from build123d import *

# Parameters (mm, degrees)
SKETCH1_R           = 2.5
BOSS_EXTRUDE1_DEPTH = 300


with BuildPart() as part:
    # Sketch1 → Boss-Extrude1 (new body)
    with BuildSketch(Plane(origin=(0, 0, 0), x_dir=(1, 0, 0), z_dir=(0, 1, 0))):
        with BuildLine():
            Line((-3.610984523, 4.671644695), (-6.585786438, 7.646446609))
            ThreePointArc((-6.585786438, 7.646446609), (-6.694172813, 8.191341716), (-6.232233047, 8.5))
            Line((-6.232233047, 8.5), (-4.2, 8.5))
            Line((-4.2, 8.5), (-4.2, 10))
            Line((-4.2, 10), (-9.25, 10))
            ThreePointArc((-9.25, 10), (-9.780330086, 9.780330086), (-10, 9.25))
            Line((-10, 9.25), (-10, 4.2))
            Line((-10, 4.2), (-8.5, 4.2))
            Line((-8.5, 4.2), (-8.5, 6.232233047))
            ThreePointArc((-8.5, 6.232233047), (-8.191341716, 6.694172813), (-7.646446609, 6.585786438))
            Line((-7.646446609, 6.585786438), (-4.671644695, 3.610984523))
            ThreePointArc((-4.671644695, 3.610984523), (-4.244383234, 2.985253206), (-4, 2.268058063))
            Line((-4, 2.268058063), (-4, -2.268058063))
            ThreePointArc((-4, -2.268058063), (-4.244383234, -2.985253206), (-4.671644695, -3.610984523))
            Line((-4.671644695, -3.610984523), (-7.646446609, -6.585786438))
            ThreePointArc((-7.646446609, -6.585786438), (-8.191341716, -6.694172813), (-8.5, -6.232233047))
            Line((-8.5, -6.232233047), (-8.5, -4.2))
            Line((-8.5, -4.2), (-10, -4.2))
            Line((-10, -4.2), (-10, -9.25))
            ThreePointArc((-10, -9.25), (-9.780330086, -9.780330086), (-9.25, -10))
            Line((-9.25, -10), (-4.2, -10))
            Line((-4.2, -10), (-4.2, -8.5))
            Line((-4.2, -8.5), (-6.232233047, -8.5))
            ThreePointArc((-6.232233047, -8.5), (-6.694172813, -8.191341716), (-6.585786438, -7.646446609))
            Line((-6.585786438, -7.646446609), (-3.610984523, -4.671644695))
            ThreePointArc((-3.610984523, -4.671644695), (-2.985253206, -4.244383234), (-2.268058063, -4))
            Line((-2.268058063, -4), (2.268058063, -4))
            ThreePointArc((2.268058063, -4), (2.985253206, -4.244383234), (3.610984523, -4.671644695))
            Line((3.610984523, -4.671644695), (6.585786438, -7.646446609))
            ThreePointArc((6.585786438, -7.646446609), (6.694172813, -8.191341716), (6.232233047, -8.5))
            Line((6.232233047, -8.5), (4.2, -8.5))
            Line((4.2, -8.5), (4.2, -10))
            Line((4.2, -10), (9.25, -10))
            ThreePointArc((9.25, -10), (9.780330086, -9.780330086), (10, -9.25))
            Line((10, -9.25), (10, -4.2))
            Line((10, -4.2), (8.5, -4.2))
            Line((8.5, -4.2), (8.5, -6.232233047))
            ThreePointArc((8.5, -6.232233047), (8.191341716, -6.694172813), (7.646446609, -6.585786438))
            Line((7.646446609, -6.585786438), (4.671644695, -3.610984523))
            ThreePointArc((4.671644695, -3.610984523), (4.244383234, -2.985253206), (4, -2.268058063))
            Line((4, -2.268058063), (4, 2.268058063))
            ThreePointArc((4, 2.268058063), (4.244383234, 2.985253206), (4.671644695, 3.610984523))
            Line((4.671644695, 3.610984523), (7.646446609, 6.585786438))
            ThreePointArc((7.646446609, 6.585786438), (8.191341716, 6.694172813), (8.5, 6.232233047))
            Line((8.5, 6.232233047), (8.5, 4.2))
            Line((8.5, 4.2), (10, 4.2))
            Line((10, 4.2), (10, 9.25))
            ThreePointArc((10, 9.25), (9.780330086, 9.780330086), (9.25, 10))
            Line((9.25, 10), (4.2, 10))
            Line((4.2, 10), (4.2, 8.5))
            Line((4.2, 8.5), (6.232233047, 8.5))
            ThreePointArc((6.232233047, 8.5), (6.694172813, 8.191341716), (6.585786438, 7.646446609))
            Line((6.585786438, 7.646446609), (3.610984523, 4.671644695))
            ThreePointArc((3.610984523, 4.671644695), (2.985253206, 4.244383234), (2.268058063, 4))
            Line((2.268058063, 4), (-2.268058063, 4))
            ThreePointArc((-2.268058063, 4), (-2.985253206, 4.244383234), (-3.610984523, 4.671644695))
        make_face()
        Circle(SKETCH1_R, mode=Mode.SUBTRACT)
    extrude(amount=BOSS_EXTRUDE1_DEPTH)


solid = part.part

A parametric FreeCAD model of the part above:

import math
import FreeCAD as App
import Part
import Sketcher

V = App.Vector

doc = App.newDocument("Part")
body = doc.addObject("PartDesign::Body", "Body")

# Sketch on XZ plane
sketch1 = body.newObject("Sketcher::SketchObject", "Sketch")
sketch1.AttachmentSupport = (doc.getObject("XZ_Plane"), [""])
sketch1.MapMode = "FlatFace"
sketch1.addGeometry([
    Part.LineSegment(V(-3.610985, -4.671645, 0), V(-6.585786, -7.646447, 0)),  # 0
    Part.ArcOfCircle(Part.Circle(V(-6.232233, -8, 0), V(0, 0, 1), 0.5), math.radians(135), math.radians(270)),  # 1
    Part.LineSegment(V(-6.232233, -8.5, 0), V(-4.2, -8.5, 0)),  # 2
    Part.LineSegment(V(-4.2, -8.5, 0), V(-4.2, -10, 0)),  # 3
    Part.LineSegment(V(-4.2, -10, 0), V(-9.25, -10, 0)),  # 4
    Part.ArcOfCircle(Part.Circle(V(-9.25, -9.25, 0), V(0, 0, 1), 0.75), math.radians(180), math.radians(270)),  # 5
    Part.LineSegment(V(-10, -9.25, 0), V(-10, -4.2, 0)),  # 6
    Part.LineSegment(V(-10, -4.2, 0), V(-8.5, -4.2, 0)),  # 7
    Part.LineSegment(V(-8.5, -4.2, 0), V(-8.5, -6.232233, 0)),  # 8
    Part.ArcOfCircle(Part.Circle(V(-8, -6.232233, 0), V(0, 0, 1), 0.5), math.radians(-180), math.radians(-45)),  # 9
    Part.LineSegment(V(-7.646447, -6.585786, 0), V(-4.671645, -3.610985, 0)),  # 10
    Part.ArcOfCircle(Part.Circle(V(-6.755475, -1.729368, 0), V(0, 0, 1), 2.807638), math.radians(-42.080792), math.radians(-11.061698)),  # 11
    Part.LineSegment(V(-4, -2.268058, 0), V(-4, 2.268058, 0)),  # 12
    Part.ArcOfCircle(Part.Circle(V(-6.755475, 1.729368, 0), V(0, 0, 1), 2.807638), math.radians(11.061698), math.radians(42.080792)),  # 13
    Part.LineSegment(V(-4.671645, 3.610985, 0), V(-7.646447, 6.585786, 0)),  # 14
    Part.ArcOfCircle(Part.Circle(V(-8, 6.232233, 0), V(0, 0, 1), 0.5), math.radians(45), math.radians(180)),  # 15
    Part.LineSegment(V(-8.5, 6.232233, 0), V(-8.5, 4.2, 0)),  # 16
    Part.LineSegment(V(-8.5, 4.2, 0), V(-10, 4.2, 0)),  # 17
    Part.LineSegment(V(-10, 4.2, 0), V(-10, 9.25, 0)),  # 18
    Part.ArcOfCircle(Part.Circle(V(-9.25, 9.25, 0), V(0, 0, 1), 0.75), math.radians(90), math.radians(180)),  # 19
    Part.LineSegment(V(-9.25, 10, 0), V(-4.2, 10, 0)),  # 20
    Part.LineSegment(V(-4.2, 10, 0), V(-4.2, 8.5, 0)),  # 21
    Part.LineSegment(V(-4.2, 8.5, 0), V(-6.232233, 8.5, 0)),  # 22
    Part.ArcOfCircle(Part.Circle(V(-6.232233, 8, 0), V(0, 0, 1), 0.5), math.radians(90), math.radians(225)),  # 23
    Part.LineSegment(V(-6.585786, 7.646447, 0), V(-3.610985, 4.671645, 0)),  # 24
    Part.ArcOfCircle(Part.Circle(V(-1.729368, 6.755475, 0), V(0, 0, 1), 2.807638), math.radians(-132.080792), math.radians(-101.061698)),  # 25
    Part.LineSegment(V(-2.268058, 4, 0), V(2.268058, 4, 0)),  # 26
    Part.ArcOfCircle(Part.Circle(V(1.729368, 6.755475, 0), V(0, 0, 1), 2.807638), math.radians(-78.938302), math.radians(-47.919208)),  # 27
    Part.LineSegment(V(3.610985, 4.671645, 0), V(6.585786, 7.646447, 0)),  # 28
    Part.ArcOfCircle(Part.Circle(V(6.232233, 8, 0), V(0, 0, 1), 0.5), math.radians(-45), math.radians(90)),  # 29
    Part.LineSegment(V(6.232233, 8.5, 0), V(4.2, 8.5, 0)),  # 30
    Part.LineSegment(V(4.2, 8.5, 0), V(4.2, 10, 0)),  # 31
    Part.LineSegment(V(4.2, 10, 0), V(9.25, 10, 0)),  # 32
    Part.ArcOfCircle(Part.Circle(V(9.25, 9.25, 0), V(0, 0, 1), 0.75), math.radians(0), math.radians(90)),  # 33
    Part.LineSegment(V(10, 9.25, 0), V(10, 4.2, 0)),  # 34
    Part.LineSegment(V(10, 4.2, 0), V(8.5, 4.2, 0)),  # 35
    Part.LineSegment(V(8.5, 4.2, 0), V(8.5, 6.232233, 0)),  # 36
    Part.ArcOfCircle(Part.Circle(V(8, 6.232233, 0), V(0, 0, 1), 0.5), math.radians(0), math.radians(135)),  # 37
    Part.LineSegment(V(7.646447, 6.585786, 0), V(4.671645, 3.610985, 0)),  # 38
    Part.ArcOfCircle(Part.Circle(V(6.755475, 1.729368, 0), V(0, 0, 1), 2.807638), math.radians(137.919208), math.radians(168.938302)),  # 39
    Part.LineSegment(V(4, 2.268058, 0), V(4, -2.268058, 0)),  # 40
    Part.ArcOfCircle(Part.Circle(V(6.755475, -1.729368, 0), V(0, 0, 1), 2.807638), math.radians(-168.938302), math.radians(-137.919208)),  # 41
    Part.LineSegment(V(4.671645, -3.610985, 0), V(7.646447, -6.585786, 0)),  # 42
    Part.ArcOfCircle(Part.Circle(V(8, -6.232233, 0), V(0, 0, 1), 0.5), math.radians(-135), math.radians(0)),  # 43
    Part.LineSegment(V(8.5, -6.232233, 0), V(8.5, -4.2, 0)),  # 44
    Part.LineSegment(V(8.5, -4.2, 0), V(10, -4.2, 0)),  # 45
    Part.LineSegment(V(10, -4.2, 0), V(10, -9.25, 0)),  # 46
    Part.ArcOfCircle(Part.Circle(V(9.25, -9.25, 0), V(0, 0, 1), 0.75), math.radians(-90), math.radians(0)),  # 47
    Part.LineSegment(V(9.25, -10, 0), V(4.2, -10, 0)),  # 48
    Part.LineSegment(V(4.2, -10, 0), V(4.2, -8.5, 0)),  # 49
    Part.LineSegment(V(4.2, -8.5, 0), V(6.232233, -8.5, 0)),  # 50
    Part.ArcOfCircle(Part.Circle(V(6.232233, -8, 0), V(0, 0, 1), 0.5), math.radians(-90), math.radians(45)),  # 51
    Part.LineSegment(V(6.585786, -7.646447, 0), V(3.610985, -4.671645, 0)),  # 52
    Part.ArcOfCircle(Part.Circle(V(1.729368, -6.755475, 0), V(0, 0, 1), 2.807638), math.radians(47.919208), math.radians(78.938302)),  # 53
    Part.LineSegment(V(2.268058, -4, 0), V(-2.268058, -4, 0)),  # 54
    Part.ArcOfCircle(Part.Circle(V(-1.729368, -6.755475, 0), V(0, 0, 1), 2.807638), math.radians(101.061698), math.radians(132.080792)),  # 55
    Part.Circle(V(0, 0, 0), V(0, 0, 1), 2.5),  # 56
], False)
sketch1.addConstraint([
    Sketcher.Constraint("Tangent", 0, 2, 1, 1),
    Sketcher.Constraint("Tangent", 1, 2, 2, 1),
    Sketcher.Constraint("Coincident", 2, 2, 3, 1),
    Sketcher.Constraint("Coincident", 3, 2, 4, 1),
    Sketcher.Constraint("Tangent", 4, 2, 5, 2),
    Sketcher.Constraint("Tangent", 5, 1, 6, 1),
    Sketcher.Constraint("Coincident", 6, 2, 7, 1),
    Sketcher.Constraint("Coincident", 7, 2, 8, 1),
    Sketcher.Constraint("Tangent", 8, 2, 9, 1),
    Sketcher.Constraint("Tangent", 9, 2, 10, 1),
    Sketcher.Constraint("Coincident", 10, 2, 11, 1),
    Sketcher.Constraint("Coincident", 11, 2, 12, 1),
    Sketcher.Constraint("Coincident", 12, 2, 13, 1),
    Sketcher.Constraint("Coincident", 13, 2, 14, 1),
    Sketcher.Constraint("Tangent", 14, 2, 15, 1),
    Sketcher.Constraint("Tangent", 15, 2, 16, 1),
    Sketcher.Constraint("Coincident", 16, 2, 17, 1),
    Sketcher.Constraint("Coincident", 17, 2, 18, 1),
    Sketcher.Constraint("Tangent", 18, 2, 19, 2),
    Sketcher.Constraint("Tangent", 19, 1, 20, 1),
    Sketcher.Constraint("Coincident", 20, 2, 21, 1),
    Sketcher.Constraint("Coincident", 21, 2, 22, 1),
    Sketcher.Constraint("Tangent", 22, 2, 23, 1),
    Sketcher.Constraint("Tangent", 23, 2, 24, 1),
    Sketcher.Constraint("Coincident", 24, 2, 25, 1),
    Sketcher.Constraint("Coincident", 25, 2, 26, 1),
    Sketcher.Constraint("Coincident", 26, 2, 27, 1),
    Sketcher.Constraint("Coincident", 27, 2, 28, 1),
    Sketcher.Constraint("Tangent", 28, 2, 29, 1),
    Sketcher.Constraint("Tangent", 29, 2, 30, 1),
    Sketcher.Constraint("Coincident", 30, 2, 31, 1),
    Sketcher.Constraint("Coincident", 31, 2, 32, 1),
    Sketcher.Constraint("Tangent", 32, 2, 33, 2),
    Sketcher.Constraint("Tangent", 33, 1, 34, 1),
    Sketcher.Constraint("Coincident", 34, 2, 35, 1),
    Sketcher.Constraint("Coincident", 35, 2, 36, 1),
    Sketcher.Constraint("Tangent", 36, 2, 37, 1),
    Sketcher.Constraint("Tangent", 37, 2, 38, 1),
    Sketcher.Constraint("Coincident", 38, 2, 39, 1),
    Sketcher.Constraint("Coincident", 39, 2, 40, 1),
    Sketcher.Constraint("Coincident", 40, 2, 41, 1),
    Sketcher.Constraint("Coincident", 41, 2, 42, 1),
    Sketcher.Constraint("Tangent", 42, 2, 43, 1),
    Sketcher.Constraint("Tangent", 43, 2, 44, 1),
    Sketcher.Constraint("Coincident", 44, 2, 45, 1),
    Sketcher.Constraint("Coincident", 45, 2, 46, 1),
    Sketcher.Constraint("Tangent", 46, 2, 47, 2),
    Sketcher.Constraint("Tangent", 47, 1, 48, 1),
    Sketcher.Constraint("Coincident", 48, 2, 49, 1),
    Sketcher.Constraint("Coincident", 49, 2, 50, 1),
    Sketcher.Constraint("Tangent", 50, 2, 51, 1),
    Sketcher.Constraint("Tangent", 51, 2, 52, 1),
    Sketcher.Constraint("Coincident", 52, 2, 53, 1),
    Sketcher.Constraint("Coincident", 53, 2, 54, 1),
    Sketcher.Constraint("Coincident", 54, 2, 55, 1),
    Sketcher.Constraint("Coincident", 55, 2, 0, 1),
    Sketcher.Constraint("Horizontal", 2),
    Sketcher.Constraint("Vertical", 3),
    Sketcher.Constraint("Horizontal", 4),
    Sketcher.Constraint("Vertical", 6),
    Sketcher.Constraint("Horizontal", 7),
    Sketcher.Constraint("Vertical", 8),
    Sketcher.Constraint("Vertical", 12),
    Sketcher.Constraint("Vertical", 16),
    Sketcher.Constraint("Horizontal", 17),
    Sketcher.Constraint("Vertical", 18),
    Sketcher.Constraint("Horizontal", 20),
    Sketcher.Constraint("Vertical", 21),
    Sketcher.Constraint("Horizontal", 22),
    Sketcher.Constraint("Horizontal", 26),
    Sketcher.Constraint("Horizontal", 30),
    Sketcher.Constraint("Vertical", 31),
    Sketcher.Constraint("Horizontal", 32),
    Sketcher.Constraint("Vertical", 34),
    Sketcher.Constraint("Horizontal", 35),
    Sketcher.Constraint("Vertical", 36),
    Sketcher.Constraint("Vertical", 40),
    Sketcher.Constraint("Vertical", 44),
    Sketcher.Constraint("Horizontal", 45),
    Sketcher.Constraint("Vertical", 46),
    Sketcher.Constraint("Horizontal", 48),
    Sketcher.Constraint("Vertical", 49),
    Sketcher.Constraint("Horizontal", 50),
    Sketcher.Constraint("Horizontal", 54),
    Sketcher.Constraint("Coincident", 56, 3, -1, 1),
    Sketcher.Constraint("Equal", 1, 9),
    Sketcher.Constraint("Equal", 11, 13),
    Sketcher.Constraint("Equal", 9, 15),
    Sketcher.Constraint("Equal", 5, 19),
    Sketcher.Constraint("Equal", 15, 23),
    Sketcher.Constraint("Equal", 13, 25),
    Sketcher.Constraint("Equal", 25, 27),
    Sketcher.Constraint("Equal", 23, 29),
    Sketcher.Constraint("Equal", 19, 33),
    Sketcher.Constraint("Equal", 29, 37),
    Sketcher.Constraint("Equal", 27, 39),
    Sketcher.Constraint("Equal", 39, 41),
    Sketcher.Constraint("Equal", 37, 43),
    Sketcher.Constraint("Equal", 33, 47),
    Sketcher.Constraint("Equal", 43, 51),
    Sketcher.Constraint("Equal", 41, 53),
    Sketcher.Constraint("Equal", 53, 55),
    Sketcher.Constraint("Symmetric", 1, 3, 29, 3, -1, 1),
    Sketcher.Constraint("Symmetric", 5, 3, 33, 3, -1, 1),
    Sketcher.Constraint("Symmetric", 9, 3, 37, 3, -1, 1),
    Sketcher.Constraint("Symmetric", 11, 3, 39, 3, -1, 1),
    Sketcher.Constraint("Symmetric", 13, 3, 41, 3, -1, 1),
    Sketcher.Constraint("Symmetric", 15, 3, 43, 3, -1, 1),
    Sketcher.Constraint("Symmetric", 19, 3, 47, 3, -1, 1),
    Sketcher.Constraint("Symmetric", 23, 3, 51, 3, -1, 1),
    Sketcher.Constraint("Symmetric", 25, 3, 53, 3, -1, 1),
    Sketcher.Constraint("Symmetric", 27, 3, 55, 3, -1, 1),
    Sketcher.Constraint("Symmetric", 25, 3, 27, 3, -2),
    Sketcher.Constraint("Symmetric", 23, 3, 29, 3, -2),
    Sketcher.Constraint("Symmetric", 19, 3, 33, 3, -2),
    Sketcher.Constraint("Symmetric", 15, 3, 37, 3, -2),
    Sketcher.Constraint("Symmetric", 13, 3, 39, 3, -2),
    Sketcher.Constraint("Parallel", 0, 10),
    Sketcher.Constraint("Perpendicular", 10, 14),
    Sketcher.Constraint("Parallel", 14, 24),
    Sketcher.Constraint("Perpendicular", 24, 28),
    Sketcher.Constraint("Parallel", 28, 38),
    Sketcher.Constraint("Perpendicular", 38, 42),
    Sketcher.Constraint("Parallel", 42, 52),
    Sketcher.Constraint("Horizontal", 24, 2, 27, 2),
    Sketcher.Constraint("Horizontal", 17, 2, 34, 2),
    Sketcher.Constraint("Horizontal", 12, 2, 39, 2),
    Sketcher.Constraint("Horizontal", 7, 2, 44, 2),
    Sketcher.Constraint("Vertical", 3, 2, 20, 2),
    Sketcher.Constraint("Vertical", 31, 2, 48, 2),
    Sketcher.Constraint("Vertical", 26, 2, 53, 2),
    Sketcher.Constraint("Equal", 22, 30),
    Sketcher.Constraint("Equal", 45, 3),
    Sketcher.Constraint("Equal", 48, 6),
    Sketcher.Constraint("Equal", 50, 8),
    Sketcher.Constraint("Equal", 54, 12),
    Sketcher.Constraint("Equal", 8, 16),
    Sketcher.Constraint("Equal", 0, 10),
    Sketcher.Constraint("Diameter", 56, 5.0),
    Sketcher.Constraint("Radius", 1, 0.5),
    Sketcher.Constraint("Radius", 5, 0.75),
    Sketcher.Constraint("DistanceX", 7, 1, 7, 2, 1.5),
    Sketcher.Constraint("DistanceY", 1, 3, -1, 1, 8.0),
    Sketcher.Constraint("DistanceX", 9, 3, -1, 1, 8.0),
    Sketcher.Constraint("DistanceX", 11, 2, -1, 1, 4.0),
    Sketcher.Constraint("DistanceY", -1, 1, 25, 2, 4.0),
    Sketcher.Constraint("DistanceX", 4, 2, 4, 1, 5.05),
    Sketcher.Constraint("Radius", 11, 2.807638),
    Sketcher.Constraint("DistanceX", 2, 1, 2, 2, 2.032233),
    Sketcher.Constraint("DistanceX", 26, 1, 26, 2, 4.536116),
    Sketcher.Constraint("DistanceY", 11, 3, -1, 1, 1.729368),
])
pad1 = body.newObject("PartDesign::Pad", "Pad")
pad1.Profile = sketch1
pad1.Length = 300
pad1.Reversed = True

doc.recompute()
